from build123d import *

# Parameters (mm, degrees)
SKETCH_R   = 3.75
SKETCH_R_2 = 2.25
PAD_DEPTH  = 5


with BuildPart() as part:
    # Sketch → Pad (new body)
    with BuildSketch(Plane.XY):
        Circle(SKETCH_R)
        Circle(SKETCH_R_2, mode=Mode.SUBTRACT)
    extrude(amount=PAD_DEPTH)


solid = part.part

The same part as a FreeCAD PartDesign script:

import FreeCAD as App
import Part
import Sketcher
from FreeCAD import Vector
Q = App.Units.Quantity

doc = App.newDocument("Part")
params = doc.addObject("Spreadsheet::Sheet", "Params")
for row, (alias, value) in enumerate([
    ("sketch1_diameter", "7.5 mm"),
    ("sketch1_diameter2", "4.5 mm"),
    ("pad1_length", "5 mm"),
], start=1):
    params.set(f"A{row}", alias)
    params.set(f"B{row}", "=" + value)
    params.setAlias(f"B{row}", alias)

body = doc.addObject("PartDesign::Body", "Body")

# Sketch on XY plane
sketch1 = body.newObject("Sketcher::SketchObject", "Sketch")
sketch1.AttachmentSupport = (doc.getObject("XY_Plane"), [""])
sketch1.MapMode = "FlatFace"
sketch1.addGeometry([
    Part.Circle(Vector(0, 0, 0), Vector(0, 0, 1), 3.8),
    Part.Circle(Vector(0, 0, 0), Vector(0, 0, 1), 2.2),
], False)
sketch1.addConstraint([
    Sketcher.Constraint("Coincident", 0, 3, -1, 1),
    Sketcher.Constraint("Coincident", 1, 3, -1, 1),
    Sketcher.Constraint("Diameter", 0, Q("7.5 mm")),
    Sketcher.Constraint("Diameter", 1, Q("4.5 mm")),
])
sketch1.setExpression("Constraints[2]", "Params.sketch1_diameter")
sketch1.setExpression("Constraints[3]", "Params.sketch1_diameter2")
pad1 = body.newObject("PartDesign::Pad", "Pad")
pad1.Profile = sketch1
pad1.setExpression("Length", "Params.pad1_length")

doc.recompute()
